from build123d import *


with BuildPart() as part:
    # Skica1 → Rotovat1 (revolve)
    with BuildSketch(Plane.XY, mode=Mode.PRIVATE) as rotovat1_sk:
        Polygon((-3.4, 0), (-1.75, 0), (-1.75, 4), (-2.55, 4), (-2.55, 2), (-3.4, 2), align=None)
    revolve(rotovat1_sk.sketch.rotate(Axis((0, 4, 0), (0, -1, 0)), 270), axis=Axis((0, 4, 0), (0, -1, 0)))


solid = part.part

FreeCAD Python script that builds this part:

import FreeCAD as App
import Part
import Sketcher
from FreeCAD import Vector
Q = App.Units.Quantity

doc = App.newDocument("Part")
params = doc.addObject("Spreadsheet::Sheet", "Params")
for row, (alias, value) in enumerate([
    ("sketch1_height", "4 mm"),
    ("sketch1_width", "0.8 mm"),
    ("sketch1_width2", "1.65 mm"),
    ("revolution_angle", "360 deg"),
], start=1):
    params.set(f"A{row}", alias)
    params.set(f"B{row}", "=" + value)
    params.setAlias(f"B{row}", alias)

body = doc.addObject("PartDesign::Body", "Body")

# Sketch on XY plane
sketch1 = body.newObject("Sketcher::SketchObject", "Sketch")
sketch1.AttachmentSupport = (doc.getObject("XY_Plane"), [""])
sketch1.MapMode = "FlatFace"
sketch1.addGeometry([
    Part.LineSegment(Vector(-3.4, 0, 0), Vector(-1.8, 0, 0)),  # 0
    Part.LineSegment(Vector(-1.8, 0, 0), Vector(-1.8, 4, 0)),  # 1
    Part.LineSegment(Vector(-1.8, 4, 0), Vector(-2.5, 4, 0)),  # 2
    Part.LineSegment(Vector(-2.5, 4, 0), Vector(-2.5, 2, 0)),  # 3
    Part.LineSegment(Vector(-2.5, 2, 0), Vector(-3.4, 2, 0)),  # 4
    Part.LineSegment(Vector(-3.4, 2, 0), Vector(-3.4, 0, 0)),  # 5
], False)
sketch1.addConstraint([
    Sketcher.Constraint("Coincident", 0, 2, 1, 1),
    Sketcher.Constraint("Coincident", 1, 2, 2, 1),
    Sketcher.Constraint("Coincident", 2, 2, 3, 1),
    Sketcher.Constraint("Coincident", 3, 2, 4, 1),
    Sketcher.Constraint("Coincident", 4, 2, 5, 1),
    Sketcher.Constraint("Coincident", 5, 2, 0, 1),
    Sketcher.Constraint("Horizontal", 0),
    Sketcher.Constraint("Vertical", 1),
    Sketcher.Constraint("Horizontal", 2),
    Sketcher.Constraint("Vertical", 3),
    Sketcher.Constraint("Horizontal", 4),
    Sketcher.Constraint("Vertical", 5),
    Sketcher.Constraint("PointOnObject", 0, 2, -1),
    Sketcher.Constraint("Equal", 3, 5),
    Sketcher.Constraint("DistanceY", 1, 1, 1, 2, Q("4 mm")),
    Sketcher.Constraint("DistanceX", 2, 2, 2, 1, Q("0.8 mm")),
    Sketcher.Constraint("DistanceX", 0, 1, 0, 2, Q("1.65 mm")),
    Sketcher.Constraint("DistanceX", 4, 2, -1, 1, Q("3.4 mm")),
])
sketch1.setExpression("Constraints[14]", "Params.sketch1_height")
sketch1.setExpression("Constraints[15]", "Params.sketch1_width")
sketch1.setExpression("Constraints[16]", "Params.sketch1_width2")
revolution = body.newObject("PartDesign::Revolution", "Revolution")
revolution.Profile = sketch1
revolution.ReferenceAxis = (sketch1, ["V_Axis"])
revolution.setExpression("Angle", "Params.revolution_angle")

doc.recompute()
